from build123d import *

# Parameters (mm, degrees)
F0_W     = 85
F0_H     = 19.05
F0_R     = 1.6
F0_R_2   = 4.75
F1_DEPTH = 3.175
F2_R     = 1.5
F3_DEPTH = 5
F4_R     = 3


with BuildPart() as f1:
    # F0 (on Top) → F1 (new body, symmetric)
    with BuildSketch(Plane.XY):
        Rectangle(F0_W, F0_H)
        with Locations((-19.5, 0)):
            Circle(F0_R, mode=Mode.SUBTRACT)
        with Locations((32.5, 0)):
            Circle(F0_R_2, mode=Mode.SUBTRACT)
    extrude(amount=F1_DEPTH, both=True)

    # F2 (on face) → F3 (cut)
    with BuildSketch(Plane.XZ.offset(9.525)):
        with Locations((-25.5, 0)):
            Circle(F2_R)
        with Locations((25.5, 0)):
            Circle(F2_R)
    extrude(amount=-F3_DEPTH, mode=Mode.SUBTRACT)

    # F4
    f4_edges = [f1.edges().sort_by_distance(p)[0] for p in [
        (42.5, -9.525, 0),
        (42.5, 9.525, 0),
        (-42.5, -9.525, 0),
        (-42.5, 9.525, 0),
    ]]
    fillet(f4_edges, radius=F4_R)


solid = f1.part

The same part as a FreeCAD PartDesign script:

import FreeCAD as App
import Part
import Sketcher
from FreeCAD import Vector
Q = App.Units.Quantity


def edges_at(feature, points):
    """Names of the edges that pass closest to the given points."""
    edges = feature.Shape.Edges
    near = lambda p: min(range(len(edges)), key=lambda i: edges[i].distToShape(Part.Vertex(*p))[0])
    return sorted({f"Edge{near(p) + 1}" for p in points})


def add_polygon(sketch, points):
    """Adds a closed chain of lines whose ends are joined by coincident constraints."""
    first, n = sketch.GeometryCount, len(points)
    for a, b in zip(points, points[1:] + points[:1]):
        sketch.addGeometry(Part.LineSegment(App.Vector(*a, 0), App.Vector(*b, 0)), False)
    for i in range(n):
        sketch.addConstraint(Sketcher.Constraint("Coincident", first + i, 2, first + (i + 1) % n, 1))

doc = App.newDocument("Part")
params = doc.addObject("Spreadsheet::Sheet", "Params")
for row, (alias, value) in enumerate([
    ("sketch1_diameter", "3.2 mm"),
    ("sketch1_diameter2", "9.5 mm"),
    ("sketch1_width", "85 mm"),
    ("sketch1_height", "19.05 mm"),
    ("pad1_length", "6.35 mm"),
    ("sketch2_diameter", "3 mm"),
    ("pocket1_length", "5 mm"),
    ("fillet_radius", "3 mm"),
], start=1):
    params.set(f"A{row}", alias)
    params.set(f"B{row}", "=" + value)
    params.setAlias(f"B{row}", alias)

body = doc.addObject("PartDesign::Body", "Body")

sketch1 = body.newObject("Sketcher::SketchObject", "Sketch")
sketch1.AttachmentSupport = (doc.getObject("XY_Plane"), [""])
sketch1.MapMode = "FlatFace"
add_polygon(sketch1, [(-42.5, 9.5), (-42.5, -9.5), (42.5, -9.5), (42.5, 9.5)])
sketch1.addGeometry(Part.Circle(Vector(-19.5, 0, 0), Vector(0, 0, 1), 1.6), False)
sketch1.addGeometry(Part.Circle(Vector(32.5, 0, 0), Vector(0, 0, 1), 4.8), False)
sketch1.addConstraint([
    Sketcher.Constraint("Vertical", 0),
    Sketcher.Constraint("Horizontal", 1),
    Sketcher.Constraint("Vertical", 2),
    Sketcher.Constraint("Horizontal", 3),
    Sketcher.Constraint("Symmetric", 0, 2, 2, 2, -1, 1),
    Sketcher.Constraint("PointOnObject", 4, 3, -1),
    Sketcher.Constraint("PointOnObject", 5, 3, -1),
    Sketcher.Constraint("Diameter", 4, Q("3.2 mm")),
    Sketcher.Constraint("Diameter", 5, Q("9.5 mm")),
    Sketcher.Constraint("DistanceX", 1, 1, 1, 2, Q("85 mm")),
    Sketcher.Constraint("DistanceX", 4, 3, 5, 3, Q("52 mm")),
    Sketcher.Constraint("DistanceX", 0, 2, 4, 3, Q("23 mm")),
    Sketcher.Constraint("DistanceY", 0, 2, 0, 1, Q("19.05 mm")),
])
sketch1.setExpression("Constraints[11]", "Params.sketch1_diameter")
sketch1.setExpression("Constraints[12]", "Params.sketch1_diameter2")
sketch1.setExpression("Constraints[13]", "Params.sketch1_width")
sketch1.setExpression("Constraints[16]", "Params.sketch1_height")
pad1 = body.newObject("PartDesign::Pad", "Pad")
pad1.Profile = sketch1
pad1.setExpression("Length", "Params.pad1_length")
pad1.Midplane = True

sketch2 = body.newObject("Sketcher::SketchObject", "Sketch001")
sketch2.AttachmentSupport = (doc.getObject("XZ_Plane"), [""])
sketch2.MapMode = "FlatFace"
sketch2.AttachmentOffset = App.Placement(Vector(0, 0, 9.525), App.Rotation())
sketch2.addGeometry([
    Part.Circle(Vector(-25.5, 0, 0), Vector(0, 0, 1), 1.5),
    Part.Circle(Vector(25.5, 0, 0), Vector(0, 0, 1), 1.5),
], False)
sketch2.addConstraint([
    Sketcher.Constraint("Equal", 0, 1),
    Sketcher.Constraint("Symmetric", 0, 3, 1, 3, -1, 1),
    Sketcher.Constraint("PointOnObject", 0, 3, -1),
    Sketcher.Constraint("Diameter", 0, Q("3 mm")),
    Sketcher.Constraint("DistanceX", 0, 3, 1, 3, Q("51 mm")),
])
sketch2.setExpression("Constraints[3]", "Params.sketch2_diameter")
pocket1 = body.newObject("PartDesign::Pocket", "Pocket")
pocket1.Profile = sketch2
pocket1.setExpression("Length", "Params.pocket1_length")
doc.recompute()

fillet = body.newObject("PartDesign::Fillet", "Fillet")
fillet.Base = (pocket1, edges_at(pocket1, [
    (42.5, -9.525, 0),
    (42.5, 9.525, 0),
    (-42.5, -9.525, 0),
    (-42.5, 9.525, 0),
]))
fillet.setExpression("Radius", "Params.fillet_radius")

doc.recompute()
